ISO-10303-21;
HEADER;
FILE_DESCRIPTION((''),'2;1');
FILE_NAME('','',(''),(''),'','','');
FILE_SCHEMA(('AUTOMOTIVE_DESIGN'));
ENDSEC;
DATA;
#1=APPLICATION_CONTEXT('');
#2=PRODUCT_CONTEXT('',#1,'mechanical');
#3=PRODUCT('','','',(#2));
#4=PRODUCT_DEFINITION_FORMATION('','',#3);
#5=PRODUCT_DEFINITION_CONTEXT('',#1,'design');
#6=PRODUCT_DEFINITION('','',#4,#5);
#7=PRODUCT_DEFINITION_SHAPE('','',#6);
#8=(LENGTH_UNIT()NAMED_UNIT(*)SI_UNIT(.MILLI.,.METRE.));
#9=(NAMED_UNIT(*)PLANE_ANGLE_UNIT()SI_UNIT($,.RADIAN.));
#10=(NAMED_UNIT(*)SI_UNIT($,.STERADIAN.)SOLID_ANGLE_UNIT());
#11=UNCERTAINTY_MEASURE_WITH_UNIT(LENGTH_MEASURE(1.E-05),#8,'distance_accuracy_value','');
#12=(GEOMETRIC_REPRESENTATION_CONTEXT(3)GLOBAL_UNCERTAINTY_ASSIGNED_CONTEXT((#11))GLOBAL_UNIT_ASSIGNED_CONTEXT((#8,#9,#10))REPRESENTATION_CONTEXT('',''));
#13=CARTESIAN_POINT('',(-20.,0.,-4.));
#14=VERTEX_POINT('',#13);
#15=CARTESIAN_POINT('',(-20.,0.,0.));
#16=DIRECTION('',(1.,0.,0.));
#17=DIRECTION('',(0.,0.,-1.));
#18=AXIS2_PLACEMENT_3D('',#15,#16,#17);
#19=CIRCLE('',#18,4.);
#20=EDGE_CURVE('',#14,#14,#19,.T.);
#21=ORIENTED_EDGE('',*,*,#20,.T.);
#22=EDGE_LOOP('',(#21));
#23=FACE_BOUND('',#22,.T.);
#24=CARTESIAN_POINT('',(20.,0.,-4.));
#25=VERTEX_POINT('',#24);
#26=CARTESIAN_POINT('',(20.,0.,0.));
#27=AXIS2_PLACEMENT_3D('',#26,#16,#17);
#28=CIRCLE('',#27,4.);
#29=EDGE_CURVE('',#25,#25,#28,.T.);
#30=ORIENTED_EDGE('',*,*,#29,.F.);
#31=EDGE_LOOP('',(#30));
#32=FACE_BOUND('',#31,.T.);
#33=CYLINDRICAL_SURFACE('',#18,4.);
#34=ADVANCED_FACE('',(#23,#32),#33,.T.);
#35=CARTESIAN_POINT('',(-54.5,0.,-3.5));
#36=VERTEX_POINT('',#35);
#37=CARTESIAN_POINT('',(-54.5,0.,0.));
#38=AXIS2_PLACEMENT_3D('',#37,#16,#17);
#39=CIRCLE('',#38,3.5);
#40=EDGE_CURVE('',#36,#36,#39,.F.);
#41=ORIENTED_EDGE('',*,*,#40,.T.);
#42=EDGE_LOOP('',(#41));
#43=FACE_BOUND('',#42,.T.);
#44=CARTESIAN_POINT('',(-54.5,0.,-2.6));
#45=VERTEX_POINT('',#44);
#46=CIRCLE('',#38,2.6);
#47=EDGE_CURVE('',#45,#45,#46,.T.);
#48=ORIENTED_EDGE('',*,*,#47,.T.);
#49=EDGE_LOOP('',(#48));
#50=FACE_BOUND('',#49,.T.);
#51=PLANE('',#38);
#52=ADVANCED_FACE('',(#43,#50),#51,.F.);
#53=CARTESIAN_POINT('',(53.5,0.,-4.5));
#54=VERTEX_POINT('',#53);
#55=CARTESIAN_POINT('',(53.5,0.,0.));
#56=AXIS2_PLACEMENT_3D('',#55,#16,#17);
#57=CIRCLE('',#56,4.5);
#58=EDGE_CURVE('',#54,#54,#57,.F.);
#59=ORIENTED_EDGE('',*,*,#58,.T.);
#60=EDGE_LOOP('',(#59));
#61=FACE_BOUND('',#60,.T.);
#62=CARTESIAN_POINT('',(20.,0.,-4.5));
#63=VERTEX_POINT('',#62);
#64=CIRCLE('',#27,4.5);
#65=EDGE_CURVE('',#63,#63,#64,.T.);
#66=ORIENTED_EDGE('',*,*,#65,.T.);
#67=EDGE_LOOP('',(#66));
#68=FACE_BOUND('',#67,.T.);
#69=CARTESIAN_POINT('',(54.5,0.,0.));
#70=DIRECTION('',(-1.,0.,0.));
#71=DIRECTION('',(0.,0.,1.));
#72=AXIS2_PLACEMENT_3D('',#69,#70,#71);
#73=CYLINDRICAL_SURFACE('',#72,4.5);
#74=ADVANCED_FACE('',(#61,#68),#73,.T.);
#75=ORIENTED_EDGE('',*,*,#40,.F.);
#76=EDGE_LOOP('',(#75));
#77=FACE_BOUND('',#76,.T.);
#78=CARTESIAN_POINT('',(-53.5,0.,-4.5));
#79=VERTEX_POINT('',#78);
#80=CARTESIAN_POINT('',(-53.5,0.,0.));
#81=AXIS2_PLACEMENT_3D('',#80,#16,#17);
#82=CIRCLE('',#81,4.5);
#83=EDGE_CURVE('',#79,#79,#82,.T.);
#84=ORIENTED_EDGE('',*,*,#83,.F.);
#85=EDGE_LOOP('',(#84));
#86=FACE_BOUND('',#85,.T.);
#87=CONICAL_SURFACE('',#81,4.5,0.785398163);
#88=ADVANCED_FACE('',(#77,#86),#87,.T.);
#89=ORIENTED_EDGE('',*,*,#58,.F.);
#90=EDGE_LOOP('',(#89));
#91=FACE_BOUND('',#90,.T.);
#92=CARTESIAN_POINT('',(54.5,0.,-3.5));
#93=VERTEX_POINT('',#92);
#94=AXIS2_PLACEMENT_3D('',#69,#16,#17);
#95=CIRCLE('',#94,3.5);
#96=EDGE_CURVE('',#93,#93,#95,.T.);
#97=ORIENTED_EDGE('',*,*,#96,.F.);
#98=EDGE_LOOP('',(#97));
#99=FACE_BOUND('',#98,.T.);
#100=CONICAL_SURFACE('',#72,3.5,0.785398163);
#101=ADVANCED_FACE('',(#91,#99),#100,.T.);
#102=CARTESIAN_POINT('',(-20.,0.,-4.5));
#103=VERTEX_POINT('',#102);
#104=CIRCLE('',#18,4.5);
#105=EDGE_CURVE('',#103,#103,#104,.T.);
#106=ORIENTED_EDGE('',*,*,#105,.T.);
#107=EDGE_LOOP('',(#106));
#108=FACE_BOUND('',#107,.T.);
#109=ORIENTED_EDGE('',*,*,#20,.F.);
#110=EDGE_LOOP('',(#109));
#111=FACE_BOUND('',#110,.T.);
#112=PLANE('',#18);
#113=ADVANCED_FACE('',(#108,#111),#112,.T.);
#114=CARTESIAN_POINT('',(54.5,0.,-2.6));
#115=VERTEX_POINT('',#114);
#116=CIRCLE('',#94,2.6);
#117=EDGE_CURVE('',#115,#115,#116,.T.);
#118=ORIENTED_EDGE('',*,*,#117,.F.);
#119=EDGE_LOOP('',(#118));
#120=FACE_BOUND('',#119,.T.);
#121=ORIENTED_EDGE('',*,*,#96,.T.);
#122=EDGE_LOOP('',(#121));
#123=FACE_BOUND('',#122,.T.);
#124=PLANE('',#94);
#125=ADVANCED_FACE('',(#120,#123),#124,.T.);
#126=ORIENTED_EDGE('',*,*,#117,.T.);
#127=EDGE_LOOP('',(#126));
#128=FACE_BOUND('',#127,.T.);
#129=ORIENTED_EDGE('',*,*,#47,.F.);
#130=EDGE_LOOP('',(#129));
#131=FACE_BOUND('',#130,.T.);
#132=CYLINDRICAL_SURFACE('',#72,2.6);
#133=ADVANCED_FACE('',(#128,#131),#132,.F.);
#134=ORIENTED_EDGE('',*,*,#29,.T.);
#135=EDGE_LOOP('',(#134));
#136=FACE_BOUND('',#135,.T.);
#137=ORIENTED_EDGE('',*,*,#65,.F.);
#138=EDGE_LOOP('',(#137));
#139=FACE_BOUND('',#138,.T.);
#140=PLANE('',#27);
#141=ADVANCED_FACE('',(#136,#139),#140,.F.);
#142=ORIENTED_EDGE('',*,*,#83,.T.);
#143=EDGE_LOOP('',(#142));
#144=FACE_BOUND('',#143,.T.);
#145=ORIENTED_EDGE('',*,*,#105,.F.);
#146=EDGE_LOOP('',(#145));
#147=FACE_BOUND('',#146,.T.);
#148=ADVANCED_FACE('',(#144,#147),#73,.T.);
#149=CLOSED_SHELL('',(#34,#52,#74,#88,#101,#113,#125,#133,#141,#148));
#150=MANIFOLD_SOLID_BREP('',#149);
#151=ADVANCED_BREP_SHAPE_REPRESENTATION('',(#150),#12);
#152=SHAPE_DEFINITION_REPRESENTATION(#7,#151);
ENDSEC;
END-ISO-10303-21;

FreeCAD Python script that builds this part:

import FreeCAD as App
import Part
import Sketcher


def edges_at(feature, points):
    """Names of the edges that pass closest to the given points."""
    edges = feature.Shape.Edges
    near = lambda p: min(range(len(edges)), key=lambda i: edges[i].distToShape(Part.Vertex(*p))[0])
    return sorted({f"Edge{near(p) + 1}" for p in points})

doc = App.newDocument("Part")
body = doc.addObject("PartDesign::Body", "Body")

# Sketch on YZ plane
sketch1 = doc.addObject("Sketcher::SketchObject", "Sketch")
body.addObject(sketch1)
sketch1.AttachmentSupport = (doc.YZ_Plane, [""])
sketch1.MapMode = "FlatFace"
sketch1.addGeometry([
    Part.Circle(App.Vector(0, 0, 0), App.Vector(0, 0, 1), 4.5),
    Part.Circle(App.Vector(0, 0, 0), App.Vector(0, 0, 1), 2.6),
], False)
sketch1.addConstraint([
    Sketcher.Constraint("Coincident", 0, 3, -1, 1),
    Sketcher.Constraint("Coincident", 1, 3, -1, 1),
    Sketcher.Constraint("Diameter", 0, 9.0),
    Sketcher.Constraint("Diameter", 1, 5.2),
])
pad1 = doc.addObject("PartDesign::Pad", "Pad")
body.addObject(pad1)
pad1.Profile = sketch1
pad1.Length = 109
pad1.Midplane = True

# Sketch on YZ plane
sketch2 = doc.addObject("Sketcher::SketchObject", "Sketch001")
body.addObject(sketch2)
sketch2.AttachmentSupport = (doc.YZ_Plane, [""])
sketch2.MapMode = "FlatFace"
sketch2.addGeometry([
    Part.LineSegment(App.Vector(16.5, 16.5, 0), App.Vector(-16.5, 16.5, 0)),  # 0
    Part.LineSegment(App.Vector(-16.5, 16.5, 0), App.Vector(-16.5, -16.5, 0)),  # 1
    Part.LineSegment(App.Vector(-16.5, -16.5, 0), App.Vector(16.5, -16.5, 0)),  # 2
    Part.LineSegment(App.Vector(16.5, -16.5, 0), App.Vector(16.5, 16.5, 0)),  # 3
    Part.Circle(App.Vector(0, 0, 0), App.Vector(0, 0, 1), 4),  # 4
], False)
sketch2.addConstraint([
    Sketcher.Constraint("Coincident", 0, 2, 1, 1),
    Sketcher.Constraint("Coincident", 1, 2, 2, 1),
    Sketcher.Constraint("Coincident", 2, 2, 3, 1),
    Sketcher.Constraint("Coincident", 3, 2, 0, 1),
    Sketcher.Constraint("Horizontal", 0),
    Sketcher.Constraint("Vertical", 1),
    Sketcher.Constraint("Horizontal", 2),
    Sketcher.Constraint("Vertical", 3),
    Sketcher.Constraint("Coincident", 4, 3, -1, 1),
    Sketcher.Constraint("Symmetric", 0, 2, 2, 2, -1, 1),
    Sketcher.Constraint("Equal", 2, 1),
    Sketcher.Constraint("Diameter", 4, 8.0),
    Sketcher.Constraint("DistanceX", 0, 2, 0, 1, 32.948),
])
pocket1 = doc.addObject("PartDesign::Pocket", "Pocket")
body.addObject(pocket1)
pocket1.Profile = sketch2
pocket1.Length = 40
pocket1.Midplane = True
doc.recompute()

chamfer = doc.addObject("PartDesign::Chamfer", "Chamfer")
body.addObject(chamfer)
chamfer.Base = (pocket1, edges_at(pocket1, [(-54.5, 0, 4.5), (54.5, 0, 4.5)]))
chamfer.Size = 1

doc.recompute()
